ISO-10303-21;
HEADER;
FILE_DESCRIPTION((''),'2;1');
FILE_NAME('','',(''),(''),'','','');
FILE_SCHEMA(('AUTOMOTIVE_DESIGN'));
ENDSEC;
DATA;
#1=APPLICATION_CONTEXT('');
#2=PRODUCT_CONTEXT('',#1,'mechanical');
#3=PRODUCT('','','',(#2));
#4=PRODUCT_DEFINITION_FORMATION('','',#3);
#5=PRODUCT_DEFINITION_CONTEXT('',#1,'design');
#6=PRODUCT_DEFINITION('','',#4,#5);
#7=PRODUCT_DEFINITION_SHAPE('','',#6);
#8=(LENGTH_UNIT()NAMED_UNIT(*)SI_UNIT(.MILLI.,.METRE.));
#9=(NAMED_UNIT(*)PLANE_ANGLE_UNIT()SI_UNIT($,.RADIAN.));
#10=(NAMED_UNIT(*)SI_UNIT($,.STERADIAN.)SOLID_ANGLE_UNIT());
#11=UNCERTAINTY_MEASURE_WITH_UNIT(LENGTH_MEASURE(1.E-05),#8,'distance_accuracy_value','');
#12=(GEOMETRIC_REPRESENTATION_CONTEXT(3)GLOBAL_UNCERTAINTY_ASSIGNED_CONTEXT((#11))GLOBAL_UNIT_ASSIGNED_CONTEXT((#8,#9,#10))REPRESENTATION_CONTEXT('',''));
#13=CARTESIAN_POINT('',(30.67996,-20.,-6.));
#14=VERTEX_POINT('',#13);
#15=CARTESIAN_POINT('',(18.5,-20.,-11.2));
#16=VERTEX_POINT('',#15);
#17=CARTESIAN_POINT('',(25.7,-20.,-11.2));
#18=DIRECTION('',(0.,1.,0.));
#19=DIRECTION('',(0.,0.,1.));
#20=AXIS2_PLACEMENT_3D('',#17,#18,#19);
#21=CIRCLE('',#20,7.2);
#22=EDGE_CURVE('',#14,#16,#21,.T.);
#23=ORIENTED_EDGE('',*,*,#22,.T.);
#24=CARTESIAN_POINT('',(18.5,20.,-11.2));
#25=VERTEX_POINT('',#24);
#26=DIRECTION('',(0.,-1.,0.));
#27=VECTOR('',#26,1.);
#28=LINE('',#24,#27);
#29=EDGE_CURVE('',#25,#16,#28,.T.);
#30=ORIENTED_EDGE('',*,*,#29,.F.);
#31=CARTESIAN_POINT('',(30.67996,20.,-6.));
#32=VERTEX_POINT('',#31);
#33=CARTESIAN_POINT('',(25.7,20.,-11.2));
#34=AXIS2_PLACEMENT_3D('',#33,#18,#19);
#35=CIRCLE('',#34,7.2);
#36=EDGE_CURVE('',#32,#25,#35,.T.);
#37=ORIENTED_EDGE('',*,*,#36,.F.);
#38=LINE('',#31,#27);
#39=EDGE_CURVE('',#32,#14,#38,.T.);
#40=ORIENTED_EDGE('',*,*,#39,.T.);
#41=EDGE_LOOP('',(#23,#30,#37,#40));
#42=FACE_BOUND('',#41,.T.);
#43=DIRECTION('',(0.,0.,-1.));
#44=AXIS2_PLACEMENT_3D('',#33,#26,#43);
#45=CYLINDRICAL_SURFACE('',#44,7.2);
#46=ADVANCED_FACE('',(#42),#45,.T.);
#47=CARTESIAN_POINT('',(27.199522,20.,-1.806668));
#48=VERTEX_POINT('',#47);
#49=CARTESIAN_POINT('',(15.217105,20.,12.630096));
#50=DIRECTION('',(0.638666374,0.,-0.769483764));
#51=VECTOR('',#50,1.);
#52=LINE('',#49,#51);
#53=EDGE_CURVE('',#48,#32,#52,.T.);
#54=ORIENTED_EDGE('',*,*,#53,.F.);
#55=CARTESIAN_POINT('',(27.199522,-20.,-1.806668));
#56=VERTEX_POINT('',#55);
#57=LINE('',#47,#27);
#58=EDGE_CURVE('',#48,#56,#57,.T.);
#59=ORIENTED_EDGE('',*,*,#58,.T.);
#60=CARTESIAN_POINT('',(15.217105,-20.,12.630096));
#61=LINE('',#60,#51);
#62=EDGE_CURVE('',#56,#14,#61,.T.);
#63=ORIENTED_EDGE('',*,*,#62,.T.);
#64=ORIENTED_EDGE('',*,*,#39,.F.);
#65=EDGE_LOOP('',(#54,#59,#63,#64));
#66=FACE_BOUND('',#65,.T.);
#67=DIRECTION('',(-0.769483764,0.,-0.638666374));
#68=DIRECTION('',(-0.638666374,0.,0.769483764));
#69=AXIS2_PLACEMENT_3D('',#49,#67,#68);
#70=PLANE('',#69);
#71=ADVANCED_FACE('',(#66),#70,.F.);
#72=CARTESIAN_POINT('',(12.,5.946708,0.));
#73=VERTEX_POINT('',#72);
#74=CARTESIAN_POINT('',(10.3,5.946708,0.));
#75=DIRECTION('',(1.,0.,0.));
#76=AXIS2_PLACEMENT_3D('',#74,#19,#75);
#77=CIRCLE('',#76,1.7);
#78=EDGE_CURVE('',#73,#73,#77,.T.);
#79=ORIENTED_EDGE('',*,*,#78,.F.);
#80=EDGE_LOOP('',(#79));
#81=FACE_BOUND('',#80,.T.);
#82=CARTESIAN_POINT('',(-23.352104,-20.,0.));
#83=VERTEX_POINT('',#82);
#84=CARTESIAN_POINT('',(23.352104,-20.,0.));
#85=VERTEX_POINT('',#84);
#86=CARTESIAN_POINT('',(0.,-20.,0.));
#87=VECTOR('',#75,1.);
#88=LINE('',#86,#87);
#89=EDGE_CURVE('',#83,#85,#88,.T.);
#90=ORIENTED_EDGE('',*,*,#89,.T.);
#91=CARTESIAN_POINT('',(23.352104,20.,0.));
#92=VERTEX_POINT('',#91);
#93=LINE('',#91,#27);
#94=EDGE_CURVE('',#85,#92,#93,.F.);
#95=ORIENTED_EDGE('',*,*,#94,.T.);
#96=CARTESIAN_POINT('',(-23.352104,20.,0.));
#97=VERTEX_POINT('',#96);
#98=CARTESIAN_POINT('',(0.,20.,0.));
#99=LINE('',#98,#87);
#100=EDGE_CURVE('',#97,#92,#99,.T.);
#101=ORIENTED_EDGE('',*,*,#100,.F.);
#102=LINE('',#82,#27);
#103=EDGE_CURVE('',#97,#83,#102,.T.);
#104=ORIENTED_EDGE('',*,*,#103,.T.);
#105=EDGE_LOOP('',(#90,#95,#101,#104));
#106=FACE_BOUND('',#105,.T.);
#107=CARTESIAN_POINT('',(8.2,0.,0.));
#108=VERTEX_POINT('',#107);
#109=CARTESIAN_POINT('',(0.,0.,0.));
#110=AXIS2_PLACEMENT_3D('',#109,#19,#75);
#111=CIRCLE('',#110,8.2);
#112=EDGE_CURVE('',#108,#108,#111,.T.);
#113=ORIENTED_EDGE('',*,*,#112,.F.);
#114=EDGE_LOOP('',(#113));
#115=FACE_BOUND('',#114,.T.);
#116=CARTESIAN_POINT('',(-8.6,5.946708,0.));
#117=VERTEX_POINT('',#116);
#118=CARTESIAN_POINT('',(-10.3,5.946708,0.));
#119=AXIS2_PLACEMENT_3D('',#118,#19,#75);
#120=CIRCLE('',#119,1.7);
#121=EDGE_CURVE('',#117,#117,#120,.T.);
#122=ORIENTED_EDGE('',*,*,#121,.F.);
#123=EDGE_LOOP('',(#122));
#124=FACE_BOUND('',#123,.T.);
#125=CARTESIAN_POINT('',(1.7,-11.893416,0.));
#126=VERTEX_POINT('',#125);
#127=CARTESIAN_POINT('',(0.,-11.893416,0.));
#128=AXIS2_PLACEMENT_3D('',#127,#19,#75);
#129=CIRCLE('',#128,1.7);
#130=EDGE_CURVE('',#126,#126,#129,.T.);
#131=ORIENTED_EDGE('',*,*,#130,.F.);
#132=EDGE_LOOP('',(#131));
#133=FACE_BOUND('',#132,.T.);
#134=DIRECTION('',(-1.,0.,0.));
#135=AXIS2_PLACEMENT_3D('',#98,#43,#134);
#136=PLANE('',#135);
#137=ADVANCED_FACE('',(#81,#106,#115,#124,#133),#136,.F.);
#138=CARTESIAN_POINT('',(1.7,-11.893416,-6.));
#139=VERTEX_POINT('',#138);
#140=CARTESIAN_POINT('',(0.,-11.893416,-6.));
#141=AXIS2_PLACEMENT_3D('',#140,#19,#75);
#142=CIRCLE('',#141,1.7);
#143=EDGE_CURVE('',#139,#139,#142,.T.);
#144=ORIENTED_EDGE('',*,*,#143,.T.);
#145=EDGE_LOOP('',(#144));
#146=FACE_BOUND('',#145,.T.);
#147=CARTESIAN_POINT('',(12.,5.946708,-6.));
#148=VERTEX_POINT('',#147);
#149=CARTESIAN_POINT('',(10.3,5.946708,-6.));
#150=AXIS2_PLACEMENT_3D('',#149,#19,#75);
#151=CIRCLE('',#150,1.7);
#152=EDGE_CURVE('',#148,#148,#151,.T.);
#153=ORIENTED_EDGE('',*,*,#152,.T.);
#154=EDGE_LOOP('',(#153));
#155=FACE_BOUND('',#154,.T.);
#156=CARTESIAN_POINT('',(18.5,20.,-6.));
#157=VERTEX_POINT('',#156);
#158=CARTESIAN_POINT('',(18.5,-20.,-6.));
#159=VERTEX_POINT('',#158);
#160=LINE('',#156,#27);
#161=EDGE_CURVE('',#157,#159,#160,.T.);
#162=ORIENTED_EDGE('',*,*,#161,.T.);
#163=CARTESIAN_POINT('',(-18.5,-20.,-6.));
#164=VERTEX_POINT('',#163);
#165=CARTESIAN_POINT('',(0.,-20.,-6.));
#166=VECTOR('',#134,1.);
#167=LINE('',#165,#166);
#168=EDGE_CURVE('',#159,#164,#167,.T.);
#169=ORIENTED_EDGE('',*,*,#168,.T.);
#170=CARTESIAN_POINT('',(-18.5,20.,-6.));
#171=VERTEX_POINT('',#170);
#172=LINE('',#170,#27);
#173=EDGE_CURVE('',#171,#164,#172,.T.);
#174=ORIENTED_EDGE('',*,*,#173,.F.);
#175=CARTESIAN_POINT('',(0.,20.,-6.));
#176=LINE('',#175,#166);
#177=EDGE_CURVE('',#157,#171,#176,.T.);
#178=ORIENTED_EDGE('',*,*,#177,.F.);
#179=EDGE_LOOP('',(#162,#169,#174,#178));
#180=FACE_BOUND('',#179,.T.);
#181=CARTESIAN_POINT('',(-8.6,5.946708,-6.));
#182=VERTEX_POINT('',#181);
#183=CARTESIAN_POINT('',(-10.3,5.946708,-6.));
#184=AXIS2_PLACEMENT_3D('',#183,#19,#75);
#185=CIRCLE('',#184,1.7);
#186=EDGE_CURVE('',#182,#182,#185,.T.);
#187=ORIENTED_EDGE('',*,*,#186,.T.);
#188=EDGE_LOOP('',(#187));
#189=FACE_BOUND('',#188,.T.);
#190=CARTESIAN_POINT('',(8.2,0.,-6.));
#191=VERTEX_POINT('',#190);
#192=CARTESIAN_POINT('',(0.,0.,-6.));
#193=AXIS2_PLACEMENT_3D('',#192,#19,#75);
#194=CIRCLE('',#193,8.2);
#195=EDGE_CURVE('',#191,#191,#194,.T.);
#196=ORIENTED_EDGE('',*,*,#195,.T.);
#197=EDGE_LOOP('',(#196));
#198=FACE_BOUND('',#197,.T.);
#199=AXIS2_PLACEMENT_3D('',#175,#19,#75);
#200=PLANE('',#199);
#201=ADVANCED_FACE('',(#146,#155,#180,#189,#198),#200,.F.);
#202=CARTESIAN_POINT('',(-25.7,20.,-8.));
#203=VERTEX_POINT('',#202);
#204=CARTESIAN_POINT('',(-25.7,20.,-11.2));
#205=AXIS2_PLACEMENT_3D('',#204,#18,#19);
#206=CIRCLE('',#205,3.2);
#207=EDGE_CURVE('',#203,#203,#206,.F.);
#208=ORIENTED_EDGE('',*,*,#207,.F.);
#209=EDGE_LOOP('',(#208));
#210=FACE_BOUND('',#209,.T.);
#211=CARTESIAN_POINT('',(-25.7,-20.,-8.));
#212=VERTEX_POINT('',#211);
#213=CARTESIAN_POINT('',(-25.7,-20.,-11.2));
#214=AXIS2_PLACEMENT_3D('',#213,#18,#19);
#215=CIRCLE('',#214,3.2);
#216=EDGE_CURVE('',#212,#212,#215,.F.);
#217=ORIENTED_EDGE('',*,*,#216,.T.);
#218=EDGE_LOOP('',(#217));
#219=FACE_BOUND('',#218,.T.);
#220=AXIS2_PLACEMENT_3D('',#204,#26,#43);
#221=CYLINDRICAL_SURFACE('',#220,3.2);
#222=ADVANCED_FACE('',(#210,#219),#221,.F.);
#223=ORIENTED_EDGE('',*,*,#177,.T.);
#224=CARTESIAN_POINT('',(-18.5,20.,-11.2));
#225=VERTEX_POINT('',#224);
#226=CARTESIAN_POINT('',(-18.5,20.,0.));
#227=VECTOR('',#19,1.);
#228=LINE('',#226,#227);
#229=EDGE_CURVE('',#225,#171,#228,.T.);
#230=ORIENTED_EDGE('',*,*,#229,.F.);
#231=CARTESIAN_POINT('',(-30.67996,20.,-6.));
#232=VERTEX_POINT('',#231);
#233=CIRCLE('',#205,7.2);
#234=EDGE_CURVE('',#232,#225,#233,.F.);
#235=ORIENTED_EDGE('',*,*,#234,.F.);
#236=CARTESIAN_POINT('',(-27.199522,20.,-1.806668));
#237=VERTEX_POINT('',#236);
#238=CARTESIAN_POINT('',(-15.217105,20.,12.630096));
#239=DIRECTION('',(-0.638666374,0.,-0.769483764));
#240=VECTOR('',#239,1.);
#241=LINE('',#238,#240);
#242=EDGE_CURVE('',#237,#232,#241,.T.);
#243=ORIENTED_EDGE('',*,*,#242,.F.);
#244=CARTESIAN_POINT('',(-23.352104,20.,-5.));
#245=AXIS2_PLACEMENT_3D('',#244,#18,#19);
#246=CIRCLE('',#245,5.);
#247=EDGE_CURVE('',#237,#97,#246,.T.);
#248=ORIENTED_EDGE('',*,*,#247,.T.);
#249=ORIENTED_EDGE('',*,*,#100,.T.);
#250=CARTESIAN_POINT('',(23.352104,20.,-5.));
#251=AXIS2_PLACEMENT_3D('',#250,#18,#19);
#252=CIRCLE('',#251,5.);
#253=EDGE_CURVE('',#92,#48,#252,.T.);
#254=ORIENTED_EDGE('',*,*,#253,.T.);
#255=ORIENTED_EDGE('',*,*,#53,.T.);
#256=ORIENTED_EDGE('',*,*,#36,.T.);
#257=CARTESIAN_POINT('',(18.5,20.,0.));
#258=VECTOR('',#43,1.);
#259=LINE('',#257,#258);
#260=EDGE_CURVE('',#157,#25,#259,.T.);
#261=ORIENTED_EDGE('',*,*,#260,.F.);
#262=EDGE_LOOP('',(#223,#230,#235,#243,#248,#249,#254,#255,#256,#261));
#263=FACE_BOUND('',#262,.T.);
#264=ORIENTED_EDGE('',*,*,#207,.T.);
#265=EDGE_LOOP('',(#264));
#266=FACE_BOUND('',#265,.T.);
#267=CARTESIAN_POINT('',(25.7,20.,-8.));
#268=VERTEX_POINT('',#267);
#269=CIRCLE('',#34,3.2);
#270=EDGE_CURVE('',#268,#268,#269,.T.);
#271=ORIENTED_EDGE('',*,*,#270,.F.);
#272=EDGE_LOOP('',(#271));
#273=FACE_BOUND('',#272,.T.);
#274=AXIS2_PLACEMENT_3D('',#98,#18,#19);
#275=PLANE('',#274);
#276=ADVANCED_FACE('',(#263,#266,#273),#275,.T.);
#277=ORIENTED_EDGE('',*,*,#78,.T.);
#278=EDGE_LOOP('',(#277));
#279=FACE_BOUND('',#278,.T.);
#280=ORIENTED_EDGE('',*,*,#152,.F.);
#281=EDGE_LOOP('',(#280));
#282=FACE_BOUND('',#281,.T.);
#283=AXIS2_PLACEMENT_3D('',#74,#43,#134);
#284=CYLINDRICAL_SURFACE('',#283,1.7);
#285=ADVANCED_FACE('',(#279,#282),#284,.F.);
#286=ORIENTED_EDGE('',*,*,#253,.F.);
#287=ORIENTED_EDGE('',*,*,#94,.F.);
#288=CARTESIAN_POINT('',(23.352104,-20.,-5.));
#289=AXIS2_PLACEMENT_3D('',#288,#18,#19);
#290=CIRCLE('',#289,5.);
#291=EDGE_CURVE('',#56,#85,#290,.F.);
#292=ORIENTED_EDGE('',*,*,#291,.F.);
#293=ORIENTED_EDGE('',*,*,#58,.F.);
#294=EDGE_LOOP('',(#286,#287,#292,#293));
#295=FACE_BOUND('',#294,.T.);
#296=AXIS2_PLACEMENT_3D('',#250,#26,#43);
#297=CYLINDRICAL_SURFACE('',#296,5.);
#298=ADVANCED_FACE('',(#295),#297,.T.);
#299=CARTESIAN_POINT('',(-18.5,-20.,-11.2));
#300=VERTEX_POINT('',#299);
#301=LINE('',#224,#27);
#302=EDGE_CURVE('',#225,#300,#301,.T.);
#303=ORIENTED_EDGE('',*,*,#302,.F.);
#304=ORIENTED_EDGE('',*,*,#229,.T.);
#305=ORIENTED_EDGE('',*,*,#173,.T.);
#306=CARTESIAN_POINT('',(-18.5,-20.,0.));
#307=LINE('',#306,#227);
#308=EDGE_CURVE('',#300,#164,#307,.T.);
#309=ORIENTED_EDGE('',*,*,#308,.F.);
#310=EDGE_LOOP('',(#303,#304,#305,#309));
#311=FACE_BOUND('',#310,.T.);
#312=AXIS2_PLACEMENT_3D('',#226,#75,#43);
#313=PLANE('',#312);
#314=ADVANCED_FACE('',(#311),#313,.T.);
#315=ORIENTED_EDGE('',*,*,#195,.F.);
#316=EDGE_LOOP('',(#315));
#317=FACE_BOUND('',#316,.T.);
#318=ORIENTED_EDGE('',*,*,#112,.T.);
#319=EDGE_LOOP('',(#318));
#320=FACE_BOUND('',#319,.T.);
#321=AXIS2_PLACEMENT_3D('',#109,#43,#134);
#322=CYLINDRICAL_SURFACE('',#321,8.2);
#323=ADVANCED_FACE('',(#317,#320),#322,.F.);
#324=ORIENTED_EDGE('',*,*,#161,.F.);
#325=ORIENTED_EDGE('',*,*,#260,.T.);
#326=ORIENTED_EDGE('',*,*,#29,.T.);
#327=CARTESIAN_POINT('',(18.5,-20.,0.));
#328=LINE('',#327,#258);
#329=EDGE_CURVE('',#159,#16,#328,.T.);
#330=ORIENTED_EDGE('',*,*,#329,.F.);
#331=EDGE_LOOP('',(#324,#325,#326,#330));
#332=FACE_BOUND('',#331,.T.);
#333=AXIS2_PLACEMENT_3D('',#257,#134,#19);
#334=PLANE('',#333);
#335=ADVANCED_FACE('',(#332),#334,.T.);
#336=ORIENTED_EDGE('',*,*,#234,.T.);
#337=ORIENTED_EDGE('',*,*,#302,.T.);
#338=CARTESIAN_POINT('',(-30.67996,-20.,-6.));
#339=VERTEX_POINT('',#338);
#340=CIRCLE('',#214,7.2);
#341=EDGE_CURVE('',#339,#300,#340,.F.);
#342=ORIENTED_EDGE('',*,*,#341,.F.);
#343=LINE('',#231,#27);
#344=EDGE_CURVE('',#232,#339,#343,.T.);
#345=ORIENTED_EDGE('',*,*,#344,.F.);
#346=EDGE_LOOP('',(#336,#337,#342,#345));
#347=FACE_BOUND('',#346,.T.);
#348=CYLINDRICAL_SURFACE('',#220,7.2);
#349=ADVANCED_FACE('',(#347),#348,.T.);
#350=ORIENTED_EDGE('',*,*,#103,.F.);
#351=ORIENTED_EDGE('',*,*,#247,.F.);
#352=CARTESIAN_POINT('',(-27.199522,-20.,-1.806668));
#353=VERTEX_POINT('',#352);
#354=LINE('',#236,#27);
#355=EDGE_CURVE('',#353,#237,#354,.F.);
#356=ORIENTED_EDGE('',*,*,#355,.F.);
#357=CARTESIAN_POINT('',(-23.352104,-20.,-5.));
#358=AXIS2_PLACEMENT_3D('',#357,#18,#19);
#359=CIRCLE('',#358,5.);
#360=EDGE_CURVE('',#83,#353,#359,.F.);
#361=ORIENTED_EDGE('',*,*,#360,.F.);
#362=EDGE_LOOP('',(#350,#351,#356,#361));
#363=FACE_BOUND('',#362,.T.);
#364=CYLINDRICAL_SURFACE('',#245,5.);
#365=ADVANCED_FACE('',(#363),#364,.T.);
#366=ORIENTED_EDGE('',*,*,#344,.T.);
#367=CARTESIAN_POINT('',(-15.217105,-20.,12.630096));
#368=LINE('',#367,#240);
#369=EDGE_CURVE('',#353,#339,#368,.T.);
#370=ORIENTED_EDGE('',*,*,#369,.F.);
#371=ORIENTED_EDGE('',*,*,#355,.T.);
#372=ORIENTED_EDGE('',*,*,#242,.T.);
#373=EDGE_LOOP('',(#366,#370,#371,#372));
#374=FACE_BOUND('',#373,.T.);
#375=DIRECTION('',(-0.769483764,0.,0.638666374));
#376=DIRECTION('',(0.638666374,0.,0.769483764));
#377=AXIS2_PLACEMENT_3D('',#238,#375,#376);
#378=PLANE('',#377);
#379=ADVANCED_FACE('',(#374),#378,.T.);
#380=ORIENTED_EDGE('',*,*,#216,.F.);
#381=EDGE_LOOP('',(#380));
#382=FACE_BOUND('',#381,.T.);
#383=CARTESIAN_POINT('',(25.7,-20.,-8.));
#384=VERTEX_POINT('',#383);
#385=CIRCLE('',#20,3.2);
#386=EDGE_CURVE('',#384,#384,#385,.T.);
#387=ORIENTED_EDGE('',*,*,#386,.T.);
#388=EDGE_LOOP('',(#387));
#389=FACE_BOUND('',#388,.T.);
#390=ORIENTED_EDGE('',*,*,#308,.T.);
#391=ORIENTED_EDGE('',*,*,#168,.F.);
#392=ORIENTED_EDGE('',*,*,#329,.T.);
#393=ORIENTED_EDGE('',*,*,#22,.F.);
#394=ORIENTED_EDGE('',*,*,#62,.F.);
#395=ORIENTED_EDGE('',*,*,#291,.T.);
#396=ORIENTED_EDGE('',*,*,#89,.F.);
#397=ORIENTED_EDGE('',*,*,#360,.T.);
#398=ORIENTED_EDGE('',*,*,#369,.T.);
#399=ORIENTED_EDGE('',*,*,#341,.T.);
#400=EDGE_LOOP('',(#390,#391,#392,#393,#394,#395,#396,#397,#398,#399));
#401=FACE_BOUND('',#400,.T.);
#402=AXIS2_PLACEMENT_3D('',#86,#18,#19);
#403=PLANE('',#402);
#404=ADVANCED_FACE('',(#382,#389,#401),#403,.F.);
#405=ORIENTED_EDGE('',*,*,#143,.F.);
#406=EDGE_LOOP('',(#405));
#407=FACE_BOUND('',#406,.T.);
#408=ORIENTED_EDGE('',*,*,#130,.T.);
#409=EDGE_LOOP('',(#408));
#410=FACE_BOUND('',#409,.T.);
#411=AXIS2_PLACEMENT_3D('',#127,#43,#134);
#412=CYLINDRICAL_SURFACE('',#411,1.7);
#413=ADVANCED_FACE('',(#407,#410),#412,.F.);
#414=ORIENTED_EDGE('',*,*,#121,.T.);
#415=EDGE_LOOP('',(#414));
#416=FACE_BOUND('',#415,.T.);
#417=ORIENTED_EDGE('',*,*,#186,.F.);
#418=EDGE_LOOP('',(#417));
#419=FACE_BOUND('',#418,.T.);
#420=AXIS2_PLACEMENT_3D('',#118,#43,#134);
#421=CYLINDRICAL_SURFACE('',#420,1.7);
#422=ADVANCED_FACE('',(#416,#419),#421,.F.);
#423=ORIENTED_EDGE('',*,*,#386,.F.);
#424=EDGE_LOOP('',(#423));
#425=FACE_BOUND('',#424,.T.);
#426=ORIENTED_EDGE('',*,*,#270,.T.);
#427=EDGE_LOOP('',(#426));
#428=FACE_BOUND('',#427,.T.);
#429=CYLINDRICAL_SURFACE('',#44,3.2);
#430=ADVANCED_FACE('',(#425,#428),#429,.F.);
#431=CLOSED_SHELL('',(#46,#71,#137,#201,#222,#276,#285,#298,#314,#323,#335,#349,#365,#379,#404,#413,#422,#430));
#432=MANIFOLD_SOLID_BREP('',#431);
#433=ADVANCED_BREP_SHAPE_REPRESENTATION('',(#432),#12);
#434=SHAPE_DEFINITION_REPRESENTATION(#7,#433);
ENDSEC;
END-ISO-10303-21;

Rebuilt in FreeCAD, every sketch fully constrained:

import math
import FreeCAD as App
import Part
import Sketcher
from FreeCAD import Vector
Q = App.Units.Quantity


def edges_at(feature, points):
    """Names of the edges that pass closest to the given points."""
    edges = feature.Shape.Edges
    near = lambda p: min(range(len(edges)), key=lambda i: edges[i].distToShape(Part.Vertex(*p))[0])
    return sorted({f"Edge{near(p) + 1}" for p in points})

doc = App.newDocument("Part")
body = doc.addObject("PartDesign::Body", "Body")

# Sketch on XZ plane
sketch1 = body.newObject("Sketcher::SketchObject", "Sketch")
sketch1.AttachmentSupport = (doc.getObject("XZ_Plane"), [""])
sketch1.MapMode = "FlatFace"
sketch1.addGeometry([
    Part.LineSegment(Vector(25.7, 0, 0), Vector(30.7, -6, 0)),  # 0
    Part.ArcOfCircle(Part.Circle(Vector(25.7, -11.2, 0), Vector(0, 0, 1), 7.2), math.radians(180), math.radians(406)),  # 1
    Part.LineSegment(Vector(18.5, -11.2, 0), Vector(18.5, -6, 0)),  # 2
    Part.LineSegment(Vector(18.5, -6, 0), Vector(-18.5, -6, 0)),  # 3
    Part.LineSegment(Vector(-18.5, -6, 0), Vector(-18.5, -11.2, 0)),  # 4
    Part.ArcOfCircle(Part.Circle(Vector(-25.7, -11.2, 0), Vector(0, 0, 1), 7.2), math.radians(134), math.radians(360)),  # 5
    Part.LineSegment(Vector(-30.7, -6, 0), Vector(-25.7, 0, 0)),  # 6
    Part.LineSegment(Vector(-25.7, 0, 0), Vector(25.7, 0, 0)),  # 7
    Part.Circle(Vector(-25.7, -11.2, 0), Vector(0, 0, 1), 3.2),  # 8
    Part.Circle(Vector(25.7, -11.2, 0), Vector(0, 0, 1), 3.2),  # 9
], False)
sketch1.addConstraint([
    Sketcher.Constraint("Coincident", 0, 2, 1, 2),
    Sketcher.Constraint("Tangent", 1, 1, 2, 1),
    Sketcher.Constraint("Coincident", 2, 2, 3, 1),
    Sketcher.Constraint("Coincident", 3, 2, 4, 1),
    Sketcher.Constraint("Tangent", 4, 2, 5, 2),
    Sketcher.Constraint("Coincident", 5, 1, 6, 1),
    Sketcher.Constraint("Coincident", 6, 2, 7, 1),
    Sketcher.Constraint("Coincident", 7, 2, 0, 1),
    Sketcher.Constraint("Vertical", 2),
    Sketcher.Constraint("Horizontal", 3),
    Sketcher.Constraint("Vertical", 4),
    Sketcher.Constraint("Horizontal", 7),
    Sketcher.Constraint("Coincident", 8, 3, 5, 3),
    Sketcher.Constraint("Coincident", 9, 3, 1, 3),
    Sketcher.Constraint("Equal", 1, 5),
    Sketcher.Constraint("Equal", 8, 9),
    Sketcher.Constraint("Symmetric", 6, 2, 7, 2, -1, 1),
    Sketcher.Constraint("Symmetric", 1, 3, 5, 3, -2),
    Sketcher.Constraint("Horizontal", 0, 2, 2, 2),
    Sketcher.Constraint("Horizontal", 3, 2, 5, 1),
    Sketcher.Constraint("Vertical", 8, 3, 6, 2),
    Sketcher.Constraint("Diameter", 8, Q("6.4 mm")),
    Sketcher.Constraint("Radius", 1, Q("7.2 mm")),
    Sketcher.Constraint("DistanceX", 3, 2, 3, 1, Q("37 mm")),
    Sketcher.Constraint("DistanceY", 2, 1, 2, 2, Q("5.2 mm")),
    Sketcher.Constraint("DistanceY", 0, 2, -1, 1, Q("6 mm")),
])
pad1 = body.newObject("PartDesign::Pad", "Pad")
pad1.Profile = sketch1
pad1.Length = 40
pad1.Midplane = True

# Sketch on XY plane
sketch2 = body.newObject("Sketcher::SketchObject", "Sketch001")
sketch2.AttachmentSupport = (doc.getObject("XY_Plane"), [""])
sketch2.MapMode = "FlatFace"
sketch2.AttachmentOffset = App.Placement(Vector(0, 0, -6), App.Rotation())
sketch2.addGeometry([
    Part.Circle(Vector(0, 0, 0), Vector(0, 0, 1), 8.2),
    Part.Circle(Vector(0, -11.9, 0), Vector(0, 0, 1), 1.7),
    Part.Circle(Vector(-10.3, 5.9, 0), Vector(0, 0, 1), 1.7),
    Part.Circle(Vector(10.3, 5.9, 0), Vector(0, 0, 1), 1.7),
], False)
sketch2.addConstraint([
    Sketcher.Constraint("Coincident", 0, 3, -1, 1),
    Sketcher.Constraint("Equal", 1, 2),
    Sketcher.Constraint("Equal", 2, 3),
    Sketcher.Constraint("Symmetric", 2, 3, 3, 3, -2),
    Sketcher.Constraint("PointOnObject", 1, 3, -2),
    Sketcher.Constraint("Diameter", 0, Q("16.4 mm")),
    Sketcher.Constraint("Diameter", 1, Q("3.4 mm")),
    Sketcher.Constraint("DistanceX", 2, 3, -1, 1, Q("10.3 mm")),
    Sketcher.Constraint("DistanceY", 1, 3, -1, 1, Q("11.893416 mm")),
    Sketcher.Constraint("DistanceY", -1, 1, 2, 3, Q("5.946708 mm")),
])
pocket1 = body.newObject("PartDesign::Pocket", "Pocket")
pocket1.Profile = sketch2
pocket1.Type = "ThroughAll"
pocket1.Reversed = True
doc.recompute()

fillet = body.newObject("PartDesign::Fillet", "Fillet")
fillet.Base = (pocket1, edges_at(pocket1, [(25.7, 0, 0), (-25.7, 0, 0)]))
fillet.Radius = 5

doc.recompute()
